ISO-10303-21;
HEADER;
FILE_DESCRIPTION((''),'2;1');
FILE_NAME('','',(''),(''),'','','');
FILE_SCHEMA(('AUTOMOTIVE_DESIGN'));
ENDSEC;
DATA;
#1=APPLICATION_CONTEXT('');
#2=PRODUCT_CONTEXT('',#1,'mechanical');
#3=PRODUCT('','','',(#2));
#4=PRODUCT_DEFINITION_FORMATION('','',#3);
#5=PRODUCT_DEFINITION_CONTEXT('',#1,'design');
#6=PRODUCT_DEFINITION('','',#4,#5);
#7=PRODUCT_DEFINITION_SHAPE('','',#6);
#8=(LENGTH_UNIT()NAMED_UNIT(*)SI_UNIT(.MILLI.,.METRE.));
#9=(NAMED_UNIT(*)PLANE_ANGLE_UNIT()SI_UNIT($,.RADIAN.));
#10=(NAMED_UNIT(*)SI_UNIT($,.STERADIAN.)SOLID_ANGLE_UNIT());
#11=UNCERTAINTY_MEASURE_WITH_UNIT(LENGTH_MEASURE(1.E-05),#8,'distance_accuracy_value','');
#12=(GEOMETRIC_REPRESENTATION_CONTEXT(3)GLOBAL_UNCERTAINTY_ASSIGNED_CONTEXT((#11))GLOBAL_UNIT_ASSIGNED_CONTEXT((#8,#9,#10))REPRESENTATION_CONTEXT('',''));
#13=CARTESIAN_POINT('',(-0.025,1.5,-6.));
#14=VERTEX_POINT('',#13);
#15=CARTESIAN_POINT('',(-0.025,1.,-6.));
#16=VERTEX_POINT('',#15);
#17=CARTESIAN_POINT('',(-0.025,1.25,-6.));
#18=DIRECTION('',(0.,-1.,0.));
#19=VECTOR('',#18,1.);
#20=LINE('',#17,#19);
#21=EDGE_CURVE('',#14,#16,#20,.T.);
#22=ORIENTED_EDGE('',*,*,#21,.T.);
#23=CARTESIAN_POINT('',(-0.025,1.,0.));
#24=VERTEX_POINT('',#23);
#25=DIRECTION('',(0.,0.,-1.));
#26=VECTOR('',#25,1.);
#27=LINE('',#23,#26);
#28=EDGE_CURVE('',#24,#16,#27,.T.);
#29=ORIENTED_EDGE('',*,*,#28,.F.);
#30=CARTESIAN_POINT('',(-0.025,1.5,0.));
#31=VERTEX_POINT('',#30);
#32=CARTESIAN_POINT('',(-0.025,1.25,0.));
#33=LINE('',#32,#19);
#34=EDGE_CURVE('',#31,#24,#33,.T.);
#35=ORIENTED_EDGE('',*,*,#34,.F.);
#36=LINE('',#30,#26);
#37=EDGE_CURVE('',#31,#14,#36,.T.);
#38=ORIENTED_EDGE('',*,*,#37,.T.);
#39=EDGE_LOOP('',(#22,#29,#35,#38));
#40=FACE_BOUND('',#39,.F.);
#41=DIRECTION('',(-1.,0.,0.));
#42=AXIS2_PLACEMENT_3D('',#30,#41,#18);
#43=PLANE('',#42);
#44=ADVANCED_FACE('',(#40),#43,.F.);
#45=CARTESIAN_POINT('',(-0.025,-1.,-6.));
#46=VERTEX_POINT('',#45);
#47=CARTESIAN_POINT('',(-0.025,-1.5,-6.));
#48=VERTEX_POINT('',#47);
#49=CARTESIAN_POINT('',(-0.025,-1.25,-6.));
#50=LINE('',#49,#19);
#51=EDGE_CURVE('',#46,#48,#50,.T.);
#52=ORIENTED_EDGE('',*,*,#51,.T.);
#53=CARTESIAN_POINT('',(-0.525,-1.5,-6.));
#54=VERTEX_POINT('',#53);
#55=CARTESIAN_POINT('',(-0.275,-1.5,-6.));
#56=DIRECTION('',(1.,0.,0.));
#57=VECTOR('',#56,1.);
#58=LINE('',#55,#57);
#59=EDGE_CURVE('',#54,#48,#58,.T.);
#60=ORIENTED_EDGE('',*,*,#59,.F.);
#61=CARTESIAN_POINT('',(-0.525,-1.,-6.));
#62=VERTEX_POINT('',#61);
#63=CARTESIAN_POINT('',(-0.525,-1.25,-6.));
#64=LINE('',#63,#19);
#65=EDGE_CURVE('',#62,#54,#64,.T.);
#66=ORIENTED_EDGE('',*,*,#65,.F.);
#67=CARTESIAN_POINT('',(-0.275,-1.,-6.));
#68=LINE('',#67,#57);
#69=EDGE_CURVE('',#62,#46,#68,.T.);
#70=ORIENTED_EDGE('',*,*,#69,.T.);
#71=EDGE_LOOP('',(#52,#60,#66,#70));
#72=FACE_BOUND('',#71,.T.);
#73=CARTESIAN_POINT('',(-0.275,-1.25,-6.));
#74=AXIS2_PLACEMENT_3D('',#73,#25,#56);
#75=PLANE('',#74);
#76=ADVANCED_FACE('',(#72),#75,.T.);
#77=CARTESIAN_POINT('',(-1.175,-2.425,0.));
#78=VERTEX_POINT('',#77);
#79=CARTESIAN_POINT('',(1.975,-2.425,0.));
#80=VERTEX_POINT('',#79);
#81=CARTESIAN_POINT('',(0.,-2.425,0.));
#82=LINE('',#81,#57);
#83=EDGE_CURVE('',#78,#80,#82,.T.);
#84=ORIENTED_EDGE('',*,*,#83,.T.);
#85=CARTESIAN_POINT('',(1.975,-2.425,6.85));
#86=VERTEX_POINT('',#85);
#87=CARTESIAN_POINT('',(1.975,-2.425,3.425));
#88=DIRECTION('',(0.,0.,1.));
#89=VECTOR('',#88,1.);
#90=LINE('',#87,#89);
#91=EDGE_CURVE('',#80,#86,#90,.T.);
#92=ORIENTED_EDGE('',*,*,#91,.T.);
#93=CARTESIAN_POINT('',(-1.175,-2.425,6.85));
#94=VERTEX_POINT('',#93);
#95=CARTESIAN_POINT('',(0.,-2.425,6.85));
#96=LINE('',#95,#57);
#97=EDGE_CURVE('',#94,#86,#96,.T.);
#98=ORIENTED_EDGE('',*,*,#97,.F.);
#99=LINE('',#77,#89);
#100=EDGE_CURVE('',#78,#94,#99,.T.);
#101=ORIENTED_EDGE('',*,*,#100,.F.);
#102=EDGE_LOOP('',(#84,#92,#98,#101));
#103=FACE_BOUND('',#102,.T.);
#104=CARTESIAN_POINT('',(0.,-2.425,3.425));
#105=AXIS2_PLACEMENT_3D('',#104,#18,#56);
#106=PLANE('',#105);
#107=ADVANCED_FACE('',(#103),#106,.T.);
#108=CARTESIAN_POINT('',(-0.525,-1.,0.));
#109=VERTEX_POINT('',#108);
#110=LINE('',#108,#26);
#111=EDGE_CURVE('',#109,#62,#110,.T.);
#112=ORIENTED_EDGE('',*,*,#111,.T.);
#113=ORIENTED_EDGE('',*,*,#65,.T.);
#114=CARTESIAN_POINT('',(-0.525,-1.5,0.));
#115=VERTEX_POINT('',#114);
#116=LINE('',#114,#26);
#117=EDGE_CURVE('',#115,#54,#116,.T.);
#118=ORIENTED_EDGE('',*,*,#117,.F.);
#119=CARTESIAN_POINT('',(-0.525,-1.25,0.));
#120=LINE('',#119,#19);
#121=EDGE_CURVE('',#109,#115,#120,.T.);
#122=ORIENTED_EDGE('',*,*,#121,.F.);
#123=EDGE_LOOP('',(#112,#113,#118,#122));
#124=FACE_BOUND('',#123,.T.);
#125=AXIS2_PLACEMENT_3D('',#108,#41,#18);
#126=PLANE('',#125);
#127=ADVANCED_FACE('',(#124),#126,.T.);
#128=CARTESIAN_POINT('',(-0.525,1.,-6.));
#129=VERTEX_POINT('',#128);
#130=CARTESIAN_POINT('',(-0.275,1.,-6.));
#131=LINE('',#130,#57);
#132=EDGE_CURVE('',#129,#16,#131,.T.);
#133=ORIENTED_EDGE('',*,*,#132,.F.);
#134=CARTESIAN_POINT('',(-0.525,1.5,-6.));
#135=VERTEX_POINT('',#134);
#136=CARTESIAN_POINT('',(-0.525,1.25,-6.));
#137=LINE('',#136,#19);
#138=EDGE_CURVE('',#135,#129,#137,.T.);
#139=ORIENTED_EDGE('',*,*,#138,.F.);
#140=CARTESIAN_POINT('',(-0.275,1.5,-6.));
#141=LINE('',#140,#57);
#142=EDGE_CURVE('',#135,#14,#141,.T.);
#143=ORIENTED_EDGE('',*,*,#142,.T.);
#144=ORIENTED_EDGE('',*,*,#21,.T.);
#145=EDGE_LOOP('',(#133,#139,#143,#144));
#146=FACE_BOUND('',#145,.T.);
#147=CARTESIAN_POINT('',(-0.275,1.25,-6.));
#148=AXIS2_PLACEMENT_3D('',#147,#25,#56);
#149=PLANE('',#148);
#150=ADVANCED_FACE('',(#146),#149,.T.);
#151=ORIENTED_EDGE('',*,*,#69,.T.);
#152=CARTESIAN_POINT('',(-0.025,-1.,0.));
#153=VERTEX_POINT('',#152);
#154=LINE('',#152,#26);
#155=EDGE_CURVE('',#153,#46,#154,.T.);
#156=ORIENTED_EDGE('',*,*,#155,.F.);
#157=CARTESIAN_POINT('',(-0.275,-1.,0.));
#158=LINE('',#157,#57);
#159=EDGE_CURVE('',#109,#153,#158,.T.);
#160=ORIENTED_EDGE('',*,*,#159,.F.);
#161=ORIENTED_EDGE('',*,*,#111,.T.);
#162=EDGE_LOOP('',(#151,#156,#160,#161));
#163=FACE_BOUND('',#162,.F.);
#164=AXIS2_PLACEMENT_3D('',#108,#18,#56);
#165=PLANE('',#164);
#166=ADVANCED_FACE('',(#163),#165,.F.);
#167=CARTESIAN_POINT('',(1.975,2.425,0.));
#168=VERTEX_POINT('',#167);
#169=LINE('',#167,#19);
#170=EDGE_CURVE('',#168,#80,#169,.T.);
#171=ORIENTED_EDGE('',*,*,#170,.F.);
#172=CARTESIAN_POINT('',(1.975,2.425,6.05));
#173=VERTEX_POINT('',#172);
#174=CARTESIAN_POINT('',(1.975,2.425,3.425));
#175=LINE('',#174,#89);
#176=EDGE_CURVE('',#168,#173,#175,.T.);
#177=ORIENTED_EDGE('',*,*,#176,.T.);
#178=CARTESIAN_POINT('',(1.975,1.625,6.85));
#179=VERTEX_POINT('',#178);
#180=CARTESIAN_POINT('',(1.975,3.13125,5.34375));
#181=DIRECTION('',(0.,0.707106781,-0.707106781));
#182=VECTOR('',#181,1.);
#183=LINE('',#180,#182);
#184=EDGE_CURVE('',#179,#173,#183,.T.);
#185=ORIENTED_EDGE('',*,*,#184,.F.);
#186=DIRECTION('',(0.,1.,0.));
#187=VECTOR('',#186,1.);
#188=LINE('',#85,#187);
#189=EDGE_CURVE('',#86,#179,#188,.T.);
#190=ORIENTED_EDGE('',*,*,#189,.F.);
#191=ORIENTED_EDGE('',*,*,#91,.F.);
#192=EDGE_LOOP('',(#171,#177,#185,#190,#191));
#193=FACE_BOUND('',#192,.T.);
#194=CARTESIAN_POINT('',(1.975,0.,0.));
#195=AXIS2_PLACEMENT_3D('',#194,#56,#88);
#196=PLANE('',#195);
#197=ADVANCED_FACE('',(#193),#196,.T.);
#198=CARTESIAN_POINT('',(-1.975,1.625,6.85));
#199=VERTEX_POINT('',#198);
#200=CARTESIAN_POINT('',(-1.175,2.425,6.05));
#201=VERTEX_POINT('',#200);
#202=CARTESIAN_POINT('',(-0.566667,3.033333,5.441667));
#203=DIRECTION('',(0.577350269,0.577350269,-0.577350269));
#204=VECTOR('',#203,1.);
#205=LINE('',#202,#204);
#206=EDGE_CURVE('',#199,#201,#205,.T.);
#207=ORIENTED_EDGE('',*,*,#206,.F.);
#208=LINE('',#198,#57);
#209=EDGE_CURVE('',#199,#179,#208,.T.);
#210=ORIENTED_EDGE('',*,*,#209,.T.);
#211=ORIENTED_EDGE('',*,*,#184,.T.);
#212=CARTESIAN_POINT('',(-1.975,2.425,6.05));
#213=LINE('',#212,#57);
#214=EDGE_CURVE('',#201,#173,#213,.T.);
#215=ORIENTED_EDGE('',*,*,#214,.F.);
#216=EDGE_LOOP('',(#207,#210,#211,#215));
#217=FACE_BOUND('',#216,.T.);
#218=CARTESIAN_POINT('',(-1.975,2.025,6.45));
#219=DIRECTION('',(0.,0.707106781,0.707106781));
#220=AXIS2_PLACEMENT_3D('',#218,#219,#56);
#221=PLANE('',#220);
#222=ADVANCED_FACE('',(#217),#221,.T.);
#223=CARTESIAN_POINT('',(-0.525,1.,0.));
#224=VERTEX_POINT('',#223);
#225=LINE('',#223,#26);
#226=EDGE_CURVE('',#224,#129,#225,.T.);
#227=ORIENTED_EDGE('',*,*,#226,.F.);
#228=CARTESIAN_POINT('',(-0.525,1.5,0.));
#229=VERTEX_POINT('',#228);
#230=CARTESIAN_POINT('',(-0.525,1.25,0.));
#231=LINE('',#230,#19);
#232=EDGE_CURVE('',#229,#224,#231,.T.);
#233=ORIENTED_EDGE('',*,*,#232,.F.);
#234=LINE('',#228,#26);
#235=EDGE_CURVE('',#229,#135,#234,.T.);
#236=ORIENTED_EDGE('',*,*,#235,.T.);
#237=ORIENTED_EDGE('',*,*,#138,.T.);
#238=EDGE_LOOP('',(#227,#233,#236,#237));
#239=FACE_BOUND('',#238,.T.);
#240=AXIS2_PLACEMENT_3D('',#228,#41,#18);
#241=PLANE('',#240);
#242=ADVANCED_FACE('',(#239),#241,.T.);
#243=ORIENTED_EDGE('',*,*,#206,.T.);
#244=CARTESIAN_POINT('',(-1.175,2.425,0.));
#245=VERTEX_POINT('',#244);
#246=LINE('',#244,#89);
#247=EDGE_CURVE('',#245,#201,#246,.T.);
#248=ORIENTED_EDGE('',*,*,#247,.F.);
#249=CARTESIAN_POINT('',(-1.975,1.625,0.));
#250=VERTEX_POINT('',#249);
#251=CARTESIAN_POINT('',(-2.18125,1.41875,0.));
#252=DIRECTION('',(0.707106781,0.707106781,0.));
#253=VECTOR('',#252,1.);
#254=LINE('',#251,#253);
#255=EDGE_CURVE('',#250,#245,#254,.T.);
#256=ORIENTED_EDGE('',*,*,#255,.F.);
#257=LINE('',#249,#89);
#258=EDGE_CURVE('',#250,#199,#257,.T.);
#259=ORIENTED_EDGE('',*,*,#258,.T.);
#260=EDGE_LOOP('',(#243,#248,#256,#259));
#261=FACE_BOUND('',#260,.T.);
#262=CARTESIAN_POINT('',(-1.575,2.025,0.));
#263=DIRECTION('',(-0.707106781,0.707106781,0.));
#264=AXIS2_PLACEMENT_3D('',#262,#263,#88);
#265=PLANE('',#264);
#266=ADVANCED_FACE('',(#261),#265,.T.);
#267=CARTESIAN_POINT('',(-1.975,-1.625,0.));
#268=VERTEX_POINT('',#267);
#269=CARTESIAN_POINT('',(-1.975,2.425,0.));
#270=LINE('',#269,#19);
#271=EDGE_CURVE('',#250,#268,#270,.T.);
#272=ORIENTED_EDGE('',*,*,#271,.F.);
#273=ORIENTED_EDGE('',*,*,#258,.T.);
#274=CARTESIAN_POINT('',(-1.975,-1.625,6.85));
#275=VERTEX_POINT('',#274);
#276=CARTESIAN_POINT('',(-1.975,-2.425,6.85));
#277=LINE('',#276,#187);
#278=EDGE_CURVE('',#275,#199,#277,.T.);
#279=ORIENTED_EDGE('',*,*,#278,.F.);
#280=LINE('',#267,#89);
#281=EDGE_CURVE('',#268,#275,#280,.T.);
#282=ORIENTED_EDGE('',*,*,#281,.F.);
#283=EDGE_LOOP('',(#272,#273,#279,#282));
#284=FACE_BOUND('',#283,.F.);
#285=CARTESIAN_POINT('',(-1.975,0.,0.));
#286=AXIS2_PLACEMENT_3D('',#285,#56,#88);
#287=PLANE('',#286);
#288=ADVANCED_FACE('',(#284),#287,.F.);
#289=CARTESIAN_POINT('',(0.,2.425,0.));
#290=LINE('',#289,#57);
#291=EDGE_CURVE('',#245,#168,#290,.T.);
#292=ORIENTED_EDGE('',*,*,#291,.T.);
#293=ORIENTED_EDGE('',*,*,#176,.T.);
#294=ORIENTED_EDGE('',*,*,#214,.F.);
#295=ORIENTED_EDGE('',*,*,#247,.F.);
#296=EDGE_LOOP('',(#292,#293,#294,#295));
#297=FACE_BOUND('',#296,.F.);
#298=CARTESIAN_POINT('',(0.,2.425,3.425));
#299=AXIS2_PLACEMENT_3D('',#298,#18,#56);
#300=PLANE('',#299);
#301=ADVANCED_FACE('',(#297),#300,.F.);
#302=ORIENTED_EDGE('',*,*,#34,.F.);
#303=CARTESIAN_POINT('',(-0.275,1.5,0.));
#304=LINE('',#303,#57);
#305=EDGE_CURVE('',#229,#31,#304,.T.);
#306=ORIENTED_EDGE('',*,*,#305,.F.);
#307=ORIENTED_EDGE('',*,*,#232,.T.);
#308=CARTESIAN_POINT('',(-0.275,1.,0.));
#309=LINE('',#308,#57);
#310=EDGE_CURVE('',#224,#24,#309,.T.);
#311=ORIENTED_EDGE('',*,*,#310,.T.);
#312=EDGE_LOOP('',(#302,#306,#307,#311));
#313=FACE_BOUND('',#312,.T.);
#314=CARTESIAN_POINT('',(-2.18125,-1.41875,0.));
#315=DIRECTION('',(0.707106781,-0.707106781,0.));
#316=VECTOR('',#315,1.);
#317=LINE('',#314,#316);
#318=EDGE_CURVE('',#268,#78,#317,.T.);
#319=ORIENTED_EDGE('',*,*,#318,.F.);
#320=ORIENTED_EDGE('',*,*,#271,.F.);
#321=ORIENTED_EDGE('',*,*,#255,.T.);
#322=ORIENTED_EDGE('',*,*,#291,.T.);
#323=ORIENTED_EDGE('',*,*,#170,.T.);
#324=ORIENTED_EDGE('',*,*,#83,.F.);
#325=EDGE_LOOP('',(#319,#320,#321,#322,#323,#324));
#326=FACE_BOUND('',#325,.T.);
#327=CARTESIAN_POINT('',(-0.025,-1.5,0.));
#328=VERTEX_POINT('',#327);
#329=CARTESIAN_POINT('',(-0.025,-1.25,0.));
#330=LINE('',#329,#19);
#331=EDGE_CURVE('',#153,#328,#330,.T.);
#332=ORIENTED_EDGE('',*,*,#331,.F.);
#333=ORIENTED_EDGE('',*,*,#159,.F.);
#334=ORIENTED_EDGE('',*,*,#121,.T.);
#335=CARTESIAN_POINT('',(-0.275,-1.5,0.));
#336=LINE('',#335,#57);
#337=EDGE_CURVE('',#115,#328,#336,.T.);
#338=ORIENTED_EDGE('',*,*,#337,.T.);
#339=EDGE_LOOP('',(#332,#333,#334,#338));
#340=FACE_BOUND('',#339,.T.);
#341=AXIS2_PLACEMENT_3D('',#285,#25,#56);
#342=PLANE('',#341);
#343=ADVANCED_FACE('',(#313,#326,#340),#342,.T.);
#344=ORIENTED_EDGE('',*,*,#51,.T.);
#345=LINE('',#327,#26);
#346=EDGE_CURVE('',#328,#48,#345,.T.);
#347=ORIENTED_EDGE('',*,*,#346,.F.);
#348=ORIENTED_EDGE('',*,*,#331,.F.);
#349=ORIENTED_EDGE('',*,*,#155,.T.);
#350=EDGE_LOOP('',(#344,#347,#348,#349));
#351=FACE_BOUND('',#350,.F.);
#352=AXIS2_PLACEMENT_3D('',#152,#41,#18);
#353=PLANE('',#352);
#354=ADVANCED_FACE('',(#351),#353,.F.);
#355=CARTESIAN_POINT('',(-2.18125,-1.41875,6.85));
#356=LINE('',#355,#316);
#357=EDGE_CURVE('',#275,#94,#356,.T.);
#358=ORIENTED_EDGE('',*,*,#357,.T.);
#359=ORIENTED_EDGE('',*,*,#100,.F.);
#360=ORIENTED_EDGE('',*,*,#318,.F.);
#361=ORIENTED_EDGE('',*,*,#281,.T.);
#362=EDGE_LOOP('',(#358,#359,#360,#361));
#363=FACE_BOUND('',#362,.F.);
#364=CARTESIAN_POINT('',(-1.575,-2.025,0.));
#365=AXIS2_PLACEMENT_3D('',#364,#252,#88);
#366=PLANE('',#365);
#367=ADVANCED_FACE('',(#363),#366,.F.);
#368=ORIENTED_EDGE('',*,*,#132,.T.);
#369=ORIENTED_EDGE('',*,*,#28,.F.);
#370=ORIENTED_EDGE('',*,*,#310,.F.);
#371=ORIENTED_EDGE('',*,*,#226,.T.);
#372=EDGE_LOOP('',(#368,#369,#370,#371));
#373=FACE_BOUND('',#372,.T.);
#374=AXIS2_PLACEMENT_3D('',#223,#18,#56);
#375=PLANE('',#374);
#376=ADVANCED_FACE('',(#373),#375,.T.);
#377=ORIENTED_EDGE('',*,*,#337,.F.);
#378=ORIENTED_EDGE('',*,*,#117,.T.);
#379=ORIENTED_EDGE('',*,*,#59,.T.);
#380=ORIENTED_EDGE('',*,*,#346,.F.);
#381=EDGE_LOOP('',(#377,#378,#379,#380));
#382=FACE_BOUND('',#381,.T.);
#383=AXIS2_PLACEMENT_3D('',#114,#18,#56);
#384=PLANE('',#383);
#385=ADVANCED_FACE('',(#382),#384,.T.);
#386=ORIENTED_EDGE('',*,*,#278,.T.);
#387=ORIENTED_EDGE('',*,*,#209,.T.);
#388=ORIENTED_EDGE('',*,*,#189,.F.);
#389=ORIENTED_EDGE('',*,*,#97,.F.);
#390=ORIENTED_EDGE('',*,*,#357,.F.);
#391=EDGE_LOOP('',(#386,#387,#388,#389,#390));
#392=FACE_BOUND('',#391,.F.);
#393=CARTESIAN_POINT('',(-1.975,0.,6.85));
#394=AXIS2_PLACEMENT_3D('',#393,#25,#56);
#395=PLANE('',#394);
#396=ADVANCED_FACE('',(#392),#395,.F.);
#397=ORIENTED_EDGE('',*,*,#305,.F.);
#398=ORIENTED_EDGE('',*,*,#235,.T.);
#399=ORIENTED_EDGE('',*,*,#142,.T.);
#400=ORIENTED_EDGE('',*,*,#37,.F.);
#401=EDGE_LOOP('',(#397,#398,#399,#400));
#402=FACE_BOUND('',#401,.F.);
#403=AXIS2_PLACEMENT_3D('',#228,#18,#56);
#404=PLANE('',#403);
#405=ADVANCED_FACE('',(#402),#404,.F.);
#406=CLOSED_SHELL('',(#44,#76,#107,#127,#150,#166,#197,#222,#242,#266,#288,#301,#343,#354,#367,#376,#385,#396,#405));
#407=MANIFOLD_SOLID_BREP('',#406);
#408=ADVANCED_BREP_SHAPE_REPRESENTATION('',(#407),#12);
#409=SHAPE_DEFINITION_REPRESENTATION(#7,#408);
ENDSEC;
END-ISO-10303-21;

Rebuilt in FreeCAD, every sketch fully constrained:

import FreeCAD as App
import Part
import Sketcher
from FreeCAD import Vector


def edges_at(feature, points):
    """Names of the edges that pass closest to the given points."""
    edges = feature.Shape.Edges
    near = lambda p: min(range(len(edges)), key=lambda i: edges[i].distToShape(Part.Vertex(*p))[0])
    return sorted({f"Edge{near(p) + 1}" for p in points})

doc = App.newDocument("Part")
params = doc.addObject("Spreadsheet::Sheet", "Params")
for row, (alias, value) in enumerate([
    ("sketch1_width", "3.95 mm"),
    ("sketch1_height", "6.85 mm"),
    ("pad1_length", "4.85 mm"),
    ("chamfer_size", "0.8 mm"),
    ("sketch2_width", "0.5 mm"),
    ("pad2_length", "6 mm"),
], start=1):
    params.set(f"A{row}", alias)
    params.set(f"B{row}", "=" + value)
    params.setAlias(f"B{row}", alias)

body = doc.addObject("PartDesign::Body", "Body")

sketch1 = doc.addObject("Sketcher::SketchObject", "Sketch")
body.addObject(sketch1)
sketch1.AttachmentSupport = (doc.XZ_Plane, [""])
sketch1.MapMode = "FlatFace"
sketch1.addGeometry(Part.LineSegment(Vector(-1.975, 6.85, 0), Vector(-1.975, 0, 0)), False)
sketch1.addGeometry(Part.LineSegment(Vector(-1.975, 0, 0), Vector(1.975, 0, 0)), False)
sketch1.addGeometry(Part.LineSegment(Vector(1.975, 0, 0), Vector(1.975, 6.85, 0)), False)
sketch1.addGeometry(Part.LineSegment(Vector(1.975, 6.85, 0), Vector(-1.975, 6.85, 0)), False)
sketch1.addConstraint(Sketcher.Constraint("Coincident", 0, 2, 1, 1))
sketch1.addConstraint(Sketcher.Constraint("Coincident", 1, 2, 2, 1))
sketch1.addConstraint(Sketcher.Constraint("Coincident", 2, 2, 3, 1))
sketch1.addConstraint(Sketcher.Constraint("Coincident", 3, 2, 0, 1))
sketch1.addConstraint(Sketcher.Constraint("Vertical", 0))
sketch1.addConstraint(Sketcher.Constraint("Horizontal", 1))
sketch1.addConstraint(Sketcher.Constraint("Vertical", 2))
sketch1.addConstraint(Sketcher.Constraint("Horizontal", 3))
sketch1.addConstraint(Sketcher.Constraint("Symmetric", 0, 2, 1, 2, -1, 1))
sketch1.addConstraint(Sketcher.Constraint("DistanceX", 1, 1, 1, 2, 3.95))
sketch1.addConstraint(Sketcher.Constraint("DistanceY", 0, 2, 0, 1, 6.85))
sketch1.setExpression("Constraints[9]", "Params.sketch1_width")
sketch1.setExpression("Constraints[10]", "Params.sketch1_height")
pad1 = doc.addObject("PartDesign::Pad", "Pad")
body.addObject(pad1)
pad1.Profile = sketch1
pad1.setExpression("Length", "Params.pad1_length")
pad1.Midplane = True
doc.recompute()

chamfer = doc.addObject("PartDesign::Chamfer", "Chamfer")
body.addObject(chamfer)
chamfer.Base = (pad1, edges_at(pad1, [(0, 2.425, 6.85), (-1.975, -2.425, 3.425), (-1.975, 2.425, 3.425)]))
chamfer.setExpression("Size", "Params.chamfer_size")

sketch2 = doc.addObject("Sketcher::SketchObject", "Sketch001")
body.addObject(sketch2)
sketch2.AttachmentSupport = (doc.XY_Plane, [""])
sketch2.MapMode = "FlatFace"
sketch2.addGeometry(Part.LineSegment(Vector(-0.525, -1.5, 0), Vector(-0.525, -1, 0)), False)
sketch2.addGeometry(Part.LineSegment(Vector(-0.525, -1, 0), Vector(-0.025, -1, 0)), False)
sketch2.addGeometry(Part.LineSegment(Vector(-0.025, -1, 0), Vector(-0.025, -1.5, 0)), False)
sketch2.addGeometry(Part.LineSegment(Vector(-0.025, -1.5, 0), Vector(-0.525, -1.5, 0)), False)
sketch2.addGeometry(Part.LineSegment(Vector(-0.525, 1, 0), Vector(-0.525, 1.5, 0)), False)
sketch2.addGeometry(Part.LineSegment(Vector(-0.525, 1.5, 0), Vector(-0.025, 1.5, 0)), False)
sketch2.addGeometry(Part.LineSegment(Vector(-0.025, 1.5, 0), Vector(-0.025, 1, 0)), False)
sketch2.addGeometry(Part.LineSegment(Vector(-0.025, 1, 0), Vector(-0.525, 1, 0)), False)
sketch2.addConstraint(Sketcher.Constraint("Coincident", 0, 2, 1, 1))
sketch2.addConstraint(Sketcher.Constraint("Coincident", 1, 2, 2, 1))
sketch2.addConstraint(Sketcher.Constraint("Coincident", 2, 2, 3, 1))
sketch2.addConstraint(Sketcher.Constraint("Coincident", 3, 2, 0, 1))
sketch2.addConstraint(Sketcher.Constraint("Coincident", 4, 2, 5, 1))
sketch2.addConstraint(Sketcher.Constraint("Coincident", 5, 2, 6, 1))
sketch2.addConstraint(Sketcher.Constraint("Coincident", 6, 2, 7, 1))
sketch2.addConstraint(Sketcher.Constraint("Coincident", 7, 2, 4, 1))
sketch2.addConstraint(Sketcher.Constraint("Vertical", 0))
sketch2.addConstraint(Sketcher.Constraint("Horizontal", 1))
sketch2.addConstraint(Sketcher.Constraint("Vertical", 2))
sketch2.addConstraint(Sketcher.Constraint("Horizontal", 3))
sketch2.addConstraint(Sketcher.Constraint("Vertical", 4))
sketch2.addConstraint(Sketcher.Constraint("Horizontal", 5))
sketch2.addConstraint(Sketcher.Constraint("Vertical", 6))
sketch2.addConstraint(Sketcher.Constraint("Horizontal", 7))
sketch2.addConstraint(Sketcher.Constraint("Symmetric", 3, 2, 4, 2, -1))
sketch2.addConstraint(Sketcher.Constraint("Symmetric", 1, 2, 6, 2, -1))
sketch2.addConstraint(Sketcher.Constraint("Equal", 7, 0))
sketch2.addConstraint(Sketcher.Constraint("DistanceX", 1, 1, 1, 2, 0.5))
sketch2.addConstraint(Sketcher.Constraint("DistanceY", 0, 2, -1, 1, 1.0))
sketch2.addConstraint(Sketcher.Constraint("DistanceX", 0, 2, -1, 1, 0.525))
sketch2.setExpression("Constraints[19]", "Params.sketch2_width")
pad2 = doc.addObject("PartDesign::Pad", "Pad001")
body.addObject(pad2)
pad2.Profile = sketch2
pad2.setExpression("Length", "Params.pad2_length")
pad2.Reversed = True

doc.recompute()
